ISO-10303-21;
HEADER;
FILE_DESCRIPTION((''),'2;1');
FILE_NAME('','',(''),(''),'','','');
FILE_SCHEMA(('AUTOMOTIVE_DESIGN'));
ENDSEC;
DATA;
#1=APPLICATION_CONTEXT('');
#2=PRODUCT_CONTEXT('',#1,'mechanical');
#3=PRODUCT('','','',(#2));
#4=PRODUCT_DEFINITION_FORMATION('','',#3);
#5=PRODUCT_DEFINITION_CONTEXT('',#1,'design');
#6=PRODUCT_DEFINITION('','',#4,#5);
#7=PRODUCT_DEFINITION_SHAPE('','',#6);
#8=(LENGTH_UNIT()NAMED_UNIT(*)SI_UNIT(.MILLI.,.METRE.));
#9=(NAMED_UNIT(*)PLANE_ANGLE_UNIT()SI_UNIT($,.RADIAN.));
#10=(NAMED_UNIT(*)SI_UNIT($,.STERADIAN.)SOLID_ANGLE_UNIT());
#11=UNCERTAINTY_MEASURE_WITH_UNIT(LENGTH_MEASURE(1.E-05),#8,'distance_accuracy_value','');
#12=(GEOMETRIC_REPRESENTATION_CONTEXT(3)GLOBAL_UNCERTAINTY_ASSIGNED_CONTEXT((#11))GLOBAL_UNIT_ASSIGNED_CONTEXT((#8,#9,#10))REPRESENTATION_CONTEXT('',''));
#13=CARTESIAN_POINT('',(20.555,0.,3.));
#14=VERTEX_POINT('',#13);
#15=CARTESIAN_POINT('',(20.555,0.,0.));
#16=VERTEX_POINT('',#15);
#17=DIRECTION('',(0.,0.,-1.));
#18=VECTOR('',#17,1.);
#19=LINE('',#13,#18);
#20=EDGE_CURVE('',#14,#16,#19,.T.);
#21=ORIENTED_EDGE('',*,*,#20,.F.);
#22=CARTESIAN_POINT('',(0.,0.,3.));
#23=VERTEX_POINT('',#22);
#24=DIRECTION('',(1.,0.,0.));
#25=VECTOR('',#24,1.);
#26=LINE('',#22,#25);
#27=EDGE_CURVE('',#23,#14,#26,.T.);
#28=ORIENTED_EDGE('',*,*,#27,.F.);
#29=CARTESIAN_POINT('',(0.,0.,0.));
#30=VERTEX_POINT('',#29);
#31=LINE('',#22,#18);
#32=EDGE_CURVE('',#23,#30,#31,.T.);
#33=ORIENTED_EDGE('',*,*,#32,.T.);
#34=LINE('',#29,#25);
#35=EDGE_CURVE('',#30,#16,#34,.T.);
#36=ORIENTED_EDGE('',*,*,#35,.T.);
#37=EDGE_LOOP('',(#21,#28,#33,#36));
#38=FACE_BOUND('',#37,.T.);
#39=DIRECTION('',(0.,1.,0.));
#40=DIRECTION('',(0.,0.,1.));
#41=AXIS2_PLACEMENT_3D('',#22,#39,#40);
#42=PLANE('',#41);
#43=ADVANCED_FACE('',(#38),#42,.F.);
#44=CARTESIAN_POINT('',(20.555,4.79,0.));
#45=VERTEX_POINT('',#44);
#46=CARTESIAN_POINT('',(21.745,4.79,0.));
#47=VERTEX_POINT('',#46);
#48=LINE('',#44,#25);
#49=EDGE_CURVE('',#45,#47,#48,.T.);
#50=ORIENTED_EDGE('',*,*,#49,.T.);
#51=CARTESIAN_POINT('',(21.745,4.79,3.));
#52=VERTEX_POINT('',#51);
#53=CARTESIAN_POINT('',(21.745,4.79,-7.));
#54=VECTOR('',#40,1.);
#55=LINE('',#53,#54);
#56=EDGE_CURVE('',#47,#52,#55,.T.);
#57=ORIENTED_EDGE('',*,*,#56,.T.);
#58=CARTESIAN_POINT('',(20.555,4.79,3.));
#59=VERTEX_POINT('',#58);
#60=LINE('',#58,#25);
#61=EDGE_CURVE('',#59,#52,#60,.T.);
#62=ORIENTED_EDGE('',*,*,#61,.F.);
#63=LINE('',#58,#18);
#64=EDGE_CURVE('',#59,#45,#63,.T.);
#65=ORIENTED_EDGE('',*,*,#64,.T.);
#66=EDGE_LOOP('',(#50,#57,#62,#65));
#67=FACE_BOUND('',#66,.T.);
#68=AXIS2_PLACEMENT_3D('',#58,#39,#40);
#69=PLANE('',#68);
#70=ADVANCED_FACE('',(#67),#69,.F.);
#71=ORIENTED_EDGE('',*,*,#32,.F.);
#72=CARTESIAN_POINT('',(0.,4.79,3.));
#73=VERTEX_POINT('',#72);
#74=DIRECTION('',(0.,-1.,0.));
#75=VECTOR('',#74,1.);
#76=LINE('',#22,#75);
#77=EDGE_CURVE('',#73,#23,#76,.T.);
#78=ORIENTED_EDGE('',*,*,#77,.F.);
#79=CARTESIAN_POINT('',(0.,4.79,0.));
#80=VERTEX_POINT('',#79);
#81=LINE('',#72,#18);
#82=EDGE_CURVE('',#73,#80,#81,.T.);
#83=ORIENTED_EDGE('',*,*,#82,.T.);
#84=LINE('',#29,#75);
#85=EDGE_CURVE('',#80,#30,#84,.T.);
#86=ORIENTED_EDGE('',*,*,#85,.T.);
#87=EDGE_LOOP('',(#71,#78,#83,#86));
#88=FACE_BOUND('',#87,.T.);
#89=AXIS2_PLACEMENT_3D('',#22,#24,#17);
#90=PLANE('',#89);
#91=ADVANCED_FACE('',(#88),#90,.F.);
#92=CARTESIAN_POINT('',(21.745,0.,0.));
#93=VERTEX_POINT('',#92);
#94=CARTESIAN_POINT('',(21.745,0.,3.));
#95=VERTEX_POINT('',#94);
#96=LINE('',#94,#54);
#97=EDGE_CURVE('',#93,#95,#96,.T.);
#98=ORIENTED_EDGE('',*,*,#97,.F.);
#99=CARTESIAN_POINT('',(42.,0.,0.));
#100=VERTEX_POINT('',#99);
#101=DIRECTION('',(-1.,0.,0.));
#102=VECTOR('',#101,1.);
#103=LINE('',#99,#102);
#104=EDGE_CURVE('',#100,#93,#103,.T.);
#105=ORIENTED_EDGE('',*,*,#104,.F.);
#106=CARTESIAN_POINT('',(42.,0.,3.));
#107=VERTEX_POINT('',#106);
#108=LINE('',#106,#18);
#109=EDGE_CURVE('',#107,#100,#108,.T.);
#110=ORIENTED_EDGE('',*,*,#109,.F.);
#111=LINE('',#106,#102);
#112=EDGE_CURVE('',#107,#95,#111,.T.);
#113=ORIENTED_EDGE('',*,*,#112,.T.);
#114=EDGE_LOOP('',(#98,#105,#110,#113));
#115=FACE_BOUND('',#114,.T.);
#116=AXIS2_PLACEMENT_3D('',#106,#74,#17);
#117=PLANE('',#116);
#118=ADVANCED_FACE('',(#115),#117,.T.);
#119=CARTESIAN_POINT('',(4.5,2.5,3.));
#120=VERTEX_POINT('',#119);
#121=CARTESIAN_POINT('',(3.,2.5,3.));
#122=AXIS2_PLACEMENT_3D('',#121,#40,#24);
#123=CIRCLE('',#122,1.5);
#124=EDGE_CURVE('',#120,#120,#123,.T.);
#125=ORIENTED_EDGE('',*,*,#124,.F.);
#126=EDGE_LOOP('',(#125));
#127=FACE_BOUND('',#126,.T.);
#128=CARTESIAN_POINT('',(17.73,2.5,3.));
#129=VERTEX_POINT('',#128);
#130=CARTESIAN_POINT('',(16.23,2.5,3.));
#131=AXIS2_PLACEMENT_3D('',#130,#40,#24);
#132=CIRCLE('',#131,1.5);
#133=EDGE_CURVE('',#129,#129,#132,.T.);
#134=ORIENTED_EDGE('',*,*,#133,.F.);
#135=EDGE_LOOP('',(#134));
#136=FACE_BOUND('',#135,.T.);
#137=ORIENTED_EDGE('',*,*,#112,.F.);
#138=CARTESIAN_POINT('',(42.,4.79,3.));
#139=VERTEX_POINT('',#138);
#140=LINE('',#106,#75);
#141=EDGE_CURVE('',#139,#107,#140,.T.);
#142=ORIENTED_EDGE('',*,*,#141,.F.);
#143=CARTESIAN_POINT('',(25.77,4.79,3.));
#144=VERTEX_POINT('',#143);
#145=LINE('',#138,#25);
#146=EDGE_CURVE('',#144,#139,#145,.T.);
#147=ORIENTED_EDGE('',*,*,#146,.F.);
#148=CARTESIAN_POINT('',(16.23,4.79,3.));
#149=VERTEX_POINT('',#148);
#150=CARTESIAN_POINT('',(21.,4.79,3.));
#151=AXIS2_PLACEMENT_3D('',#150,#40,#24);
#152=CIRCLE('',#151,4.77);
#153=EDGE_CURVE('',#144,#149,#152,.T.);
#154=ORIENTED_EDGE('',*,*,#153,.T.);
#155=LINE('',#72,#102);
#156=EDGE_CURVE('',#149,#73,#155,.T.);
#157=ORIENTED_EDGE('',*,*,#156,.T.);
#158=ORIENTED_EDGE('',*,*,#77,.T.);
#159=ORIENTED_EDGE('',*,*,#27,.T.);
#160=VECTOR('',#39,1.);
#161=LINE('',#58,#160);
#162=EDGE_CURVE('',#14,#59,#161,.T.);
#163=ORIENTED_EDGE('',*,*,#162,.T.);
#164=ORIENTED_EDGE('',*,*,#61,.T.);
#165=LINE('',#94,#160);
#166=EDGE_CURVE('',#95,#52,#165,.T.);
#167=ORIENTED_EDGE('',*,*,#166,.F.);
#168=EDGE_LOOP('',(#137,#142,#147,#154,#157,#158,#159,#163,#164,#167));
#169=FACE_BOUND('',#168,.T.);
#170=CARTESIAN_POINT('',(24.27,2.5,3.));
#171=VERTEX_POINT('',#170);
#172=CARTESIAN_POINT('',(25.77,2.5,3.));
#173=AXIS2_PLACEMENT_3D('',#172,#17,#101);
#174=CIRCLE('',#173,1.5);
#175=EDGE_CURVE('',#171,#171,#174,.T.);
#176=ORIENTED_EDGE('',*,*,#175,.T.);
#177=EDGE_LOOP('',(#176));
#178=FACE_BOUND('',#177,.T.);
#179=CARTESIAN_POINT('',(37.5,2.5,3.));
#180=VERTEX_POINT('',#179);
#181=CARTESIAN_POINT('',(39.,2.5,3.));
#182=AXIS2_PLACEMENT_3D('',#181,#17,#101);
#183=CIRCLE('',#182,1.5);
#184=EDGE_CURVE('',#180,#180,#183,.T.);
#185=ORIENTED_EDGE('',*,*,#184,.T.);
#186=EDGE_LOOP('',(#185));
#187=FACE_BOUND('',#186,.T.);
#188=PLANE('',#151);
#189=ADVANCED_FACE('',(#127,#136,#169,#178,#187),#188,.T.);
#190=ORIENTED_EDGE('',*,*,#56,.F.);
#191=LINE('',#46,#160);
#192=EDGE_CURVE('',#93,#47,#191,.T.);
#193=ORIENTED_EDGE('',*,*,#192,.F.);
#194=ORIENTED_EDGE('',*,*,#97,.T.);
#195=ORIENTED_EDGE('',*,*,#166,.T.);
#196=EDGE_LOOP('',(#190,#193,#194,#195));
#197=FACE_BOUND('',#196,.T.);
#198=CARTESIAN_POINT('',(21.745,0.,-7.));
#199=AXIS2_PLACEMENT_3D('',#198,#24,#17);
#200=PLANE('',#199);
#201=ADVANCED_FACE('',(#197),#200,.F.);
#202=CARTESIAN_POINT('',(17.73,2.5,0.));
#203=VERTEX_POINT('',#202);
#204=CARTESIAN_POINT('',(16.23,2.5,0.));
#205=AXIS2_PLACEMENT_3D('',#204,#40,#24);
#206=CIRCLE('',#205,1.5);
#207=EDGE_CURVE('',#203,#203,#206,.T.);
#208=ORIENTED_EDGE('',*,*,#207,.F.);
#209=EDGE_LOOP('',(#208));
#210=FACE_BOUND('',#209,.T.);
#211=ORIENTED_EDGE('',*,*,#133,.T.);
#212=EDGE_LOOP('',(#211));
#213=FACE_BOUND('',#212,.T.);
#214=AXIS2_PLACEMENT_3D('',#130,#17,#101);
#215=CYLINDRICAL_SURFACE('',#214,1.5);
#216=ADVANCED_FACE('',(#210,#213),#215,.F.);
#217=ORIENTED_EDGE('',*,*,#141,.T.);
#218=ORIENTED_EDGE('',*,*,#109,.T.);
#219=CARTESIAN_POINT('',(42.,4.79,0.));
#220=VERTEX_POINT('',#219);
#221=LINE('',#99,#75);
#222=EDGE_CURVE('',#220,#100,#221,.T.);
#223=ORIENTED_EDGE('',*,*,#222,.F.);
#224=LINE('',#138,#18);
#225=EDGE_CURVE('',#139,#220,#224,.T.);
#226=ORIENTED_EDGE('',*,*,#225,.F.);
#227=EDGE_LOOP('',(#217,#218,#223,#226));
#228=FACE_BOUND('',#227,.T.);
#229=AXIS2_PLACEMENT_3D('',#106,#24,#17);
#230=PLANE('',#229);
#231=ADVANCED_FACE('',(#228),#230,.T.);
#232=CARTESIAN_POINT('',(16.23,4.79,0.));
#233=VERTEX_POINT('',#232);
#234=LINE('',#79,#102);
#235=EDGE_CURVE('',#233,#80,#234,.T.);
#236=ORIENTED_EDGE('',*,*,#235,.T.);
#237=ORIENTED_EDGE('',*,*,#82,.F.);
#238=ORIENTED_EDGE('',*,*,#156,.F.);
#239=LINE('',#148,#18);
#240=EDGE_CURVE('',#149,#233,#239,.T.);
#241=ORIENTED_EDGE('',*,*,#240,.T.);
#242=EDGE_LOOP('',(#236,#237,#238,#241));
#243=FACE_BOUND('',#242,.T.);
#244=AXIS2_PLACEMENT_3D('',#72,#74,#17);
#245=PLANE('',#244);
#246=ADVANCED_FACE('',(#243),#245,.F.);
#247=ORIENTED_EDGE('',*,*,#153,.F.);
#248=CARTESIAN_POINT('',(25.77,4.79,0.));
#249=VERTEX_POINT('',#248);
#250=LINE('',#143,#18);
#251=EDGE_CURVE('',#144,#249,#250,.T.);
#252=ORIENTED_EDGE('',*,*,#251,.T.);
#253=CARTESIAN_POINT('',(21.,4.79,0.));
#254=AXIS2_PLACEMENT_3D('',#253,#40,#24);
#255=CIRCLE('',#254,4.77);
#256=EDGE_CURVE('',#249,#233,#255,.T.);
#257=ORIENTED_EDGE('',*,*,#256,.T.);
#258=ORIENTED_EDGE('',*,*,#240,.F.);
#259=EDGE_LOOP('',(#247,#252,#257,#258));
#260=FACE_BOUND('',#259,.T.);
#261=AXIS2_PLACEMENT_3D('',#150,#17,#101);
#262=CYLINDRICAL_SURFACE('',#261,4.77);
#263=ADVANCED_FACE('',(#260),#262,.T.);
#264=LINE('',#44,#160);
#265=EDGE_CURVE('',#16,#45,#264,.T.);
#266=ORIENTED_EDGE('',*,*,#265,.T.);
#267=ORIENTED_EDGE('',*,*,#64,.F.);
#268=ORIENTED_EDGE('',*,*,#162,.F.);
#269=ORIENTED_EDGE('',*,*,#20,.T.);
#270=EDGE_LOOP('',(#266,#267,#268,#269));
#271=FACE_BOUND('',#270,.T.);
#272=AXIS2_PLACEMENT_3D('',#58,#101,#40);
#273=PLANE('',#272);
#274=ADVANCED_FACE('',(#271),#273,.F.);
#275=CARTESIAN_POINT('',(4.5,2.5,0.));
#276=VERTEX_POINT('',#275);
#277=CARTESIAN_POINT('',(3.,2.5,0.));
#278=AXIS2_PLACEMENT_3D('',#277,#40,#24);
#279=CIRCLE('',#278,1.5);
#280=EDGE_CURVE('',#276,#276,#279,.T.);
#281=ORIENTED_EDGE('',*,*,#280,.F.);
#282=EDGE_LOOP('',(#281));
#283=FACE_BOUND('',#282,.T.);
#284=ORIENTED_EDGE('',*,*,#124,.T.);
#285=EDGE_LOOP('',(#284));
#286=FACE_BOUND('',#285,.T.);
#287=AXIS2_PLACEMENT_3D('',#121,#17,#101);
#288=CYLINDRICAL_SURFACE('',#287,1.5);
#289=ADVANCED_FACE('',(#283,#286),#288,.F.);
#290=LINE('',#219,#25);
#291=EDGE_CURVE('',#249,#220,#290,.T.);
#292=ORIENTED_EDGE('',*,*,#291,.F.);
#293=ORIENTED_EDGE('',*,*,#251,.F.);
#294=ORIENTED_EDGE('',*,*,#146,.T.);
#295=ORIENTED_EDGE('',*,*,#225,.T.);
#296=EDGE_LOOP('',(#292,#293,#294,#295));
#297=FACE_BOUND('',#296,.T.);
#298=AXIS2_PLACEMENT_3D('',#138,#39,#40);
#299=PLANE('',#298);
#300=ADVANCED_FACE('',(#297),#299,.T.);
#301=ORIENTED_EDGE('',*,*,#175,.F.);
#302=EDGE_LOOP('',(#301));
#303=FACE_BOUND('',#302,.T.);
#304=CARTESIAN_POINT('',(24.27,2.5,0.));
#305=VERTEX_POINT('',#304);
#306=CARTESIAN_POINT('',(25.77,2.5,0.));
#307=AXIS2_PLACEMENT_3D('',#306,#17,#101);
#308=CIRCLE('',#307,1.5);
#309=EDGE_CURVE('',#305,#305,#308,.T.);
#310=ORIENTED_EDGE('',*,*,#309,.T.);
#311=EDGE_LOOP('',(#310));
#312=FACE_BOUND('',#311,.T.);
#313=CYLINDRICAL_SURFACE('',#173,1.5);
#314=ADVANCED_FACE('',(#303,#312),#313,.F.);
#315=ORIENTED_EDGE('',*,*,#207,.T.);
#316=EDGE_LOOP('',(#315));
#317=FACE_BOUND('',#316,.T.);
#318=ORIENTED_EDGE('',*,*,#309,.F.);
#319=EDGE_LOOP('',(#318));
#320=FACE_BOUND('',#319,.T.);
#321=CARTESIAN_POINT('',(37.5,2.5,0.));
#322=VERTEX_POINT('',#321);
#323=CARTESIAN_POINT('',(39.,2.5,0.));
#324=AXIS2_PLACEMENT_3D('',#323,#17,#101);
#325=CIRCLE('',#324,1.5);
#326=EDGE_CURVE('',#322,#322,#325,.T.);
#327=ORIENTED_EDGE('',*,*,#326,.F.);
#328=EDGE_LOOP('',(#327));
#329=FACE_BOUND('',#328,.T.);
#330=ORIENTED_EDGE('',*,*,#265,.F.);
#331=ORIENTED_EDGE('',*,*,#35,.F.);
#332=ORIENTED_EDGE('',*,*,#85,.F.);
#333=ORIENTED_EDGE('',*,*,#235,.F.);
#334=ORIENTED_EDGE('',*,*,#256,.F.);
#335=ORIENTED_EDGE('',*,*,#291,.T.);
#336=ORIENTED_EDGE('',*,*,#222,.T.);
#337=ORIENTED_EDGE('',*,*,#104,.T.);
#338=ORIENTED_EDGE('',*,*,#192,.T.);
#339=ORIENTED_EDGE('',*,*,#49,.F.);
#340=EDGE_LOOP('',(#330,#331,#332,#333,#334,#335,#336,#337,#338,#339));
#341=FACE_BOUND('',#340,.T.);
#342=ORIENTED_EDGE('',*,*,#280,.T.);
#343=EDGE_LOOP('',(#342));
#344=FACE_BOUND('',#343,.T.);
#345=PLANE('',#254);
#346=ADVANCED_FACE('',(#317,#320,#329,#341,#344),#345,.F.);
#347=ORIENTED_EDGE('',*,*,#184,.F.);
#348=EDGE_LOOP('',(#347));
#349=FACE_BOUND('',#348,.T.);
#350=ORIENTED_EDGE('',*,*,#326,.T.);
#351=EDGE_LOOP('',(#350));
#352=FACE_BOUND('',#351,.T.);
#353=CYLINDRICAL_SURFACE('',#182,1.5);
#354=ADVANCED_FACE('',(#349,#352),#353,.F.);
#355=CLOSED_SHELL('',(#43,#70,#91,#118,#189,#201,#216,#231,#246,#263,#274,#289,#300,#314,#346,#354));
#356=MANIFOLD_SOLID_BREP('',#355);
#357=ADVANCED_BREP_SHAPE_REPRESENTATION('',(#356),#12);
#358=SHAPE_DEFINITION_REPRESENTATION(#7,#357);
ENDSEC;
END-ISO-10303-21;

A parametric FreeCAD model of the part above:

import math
import FreeCAD as App
import Part
import Sketcher

V = App.Vector

doc = App.newDocument("Part")
body = doc.addObject("PartDesign::Body", "Body")

# Sketch on XY plane
sketch1 = doc.addObject("Sketcher::SketchObject", "Sketch")
body.addObject(sketch1)
sketch1.AttachmentSupport = (doc.XY_Plane, [""])
sketch1.MapMode = "FlatFace"
sketch1.addGeometry([
    Part.LineSegment(V(20.55, 0, 0), V(20.55, 4.79, 0)),  # 0
    Part.LineSegment(V(20.55, 4.79, 0), V(21, 4.79, 0)),  # 1
    Part.LineSegment(V(21, 4.79, 0), V(21, 9.56, 0)),  # 2
    Part.ArcOfCircle(Part.Circle(V(21, 4.79, 0), V(0, 0, 1), 4.77), math.radians(90), math.radians(180)),  # 3
    Part.LineSegment(V(16.23, 4.79, 0), V(0, 4.79, 0)),  # 4
    Part.LineSegment(V(0, 4.79, 0), V(0, 0, 0)),  # 5
    Part.LineSegment(V(0, 0, 0), V(20.55, 0, 0)),  # 6
    Part.Circle(V(16.23, 2.5, 0), V(0, 0, 1), 1.5),  # 7
    Part.Circle(V(3, 2.5, 0), V(0, 0, 1), 1.5),  # 8
], False)
sketch1.addConstraint([
    Sketcher.Constraint("Coincident", 0, 2, 1, 1),
    Sketcher.Constraint("Coincident", 1, 2, 2, 1),
    Sketcher.Constraint("Coincident", 2, 2, 3, 1),
    Sketcher.Constraint("Coincident", 3, 2, 4, 1),
    Sketcher.Constraint("Coincident", 4, 2, 5, 1),
    Sketcher.Constraint("Coincident", 5, 2, 6, 1),
    Sketcher.Constraint("Coincident", 6, 2, 0, 1),
    Sketcher.Constraint("Vertical", 0),
    Sketcher.Constraint("Horizontal", 1),
    Sketcher.Constraint("Vertical", 2),
    Sketcher.Constraint("Horizontal", 4),
    Sketcher.Constraint("Vertical", 5),
    Sketcher.Constraint("Horizontal", 6),
    Sketcher.Constraint("Coincident", 5, 2, -1, 1),
    Sketcher.Constraint("Coincident", 1, 2, 3, 3),
    Sketcher.Constraint("Equal", 7, 8),
    Sketcher.Constraint("Horizontal", 7, 3, 8, 3),
    Sketcher.Constraint("Horizontal", 1, 2, 3, 2),
    Sketcher.Constraint("Vertical", 7, 3, 3, 2),
    Sketcher.Constraint("Diameter", 7, 3.0),
    Sketcher.Constraint("Radius", 3, 4.77),
    Sketcher.Constraint("DistanceX", -1, 1, 3, 3, 21.0),
    Sketcher.Constraint("DistanceX", -1, 1, 8, 3, 3.0),
    Sketcher.Constraint("DistanceY", 0, 1, 0, 2, 4.79),
    Sketcher.Constraint("DistanceY", -1, 1, 7, 3, 2.5),
    Sketcher.Constraint("DistanceX", 1, 1, 1, 2, 0.445),
])
pad1 = doc.addObject("PartDesign::Pad", "Pad")
body.addObject(pad1)
pad1.Profile = sketch1
pad1.Length = 3
doc.recompute()

datumplane = doc.addObject("PartDesign::Plane", "DatumPlane")
body.addObject(datumplane)
datumplane.AttachmentSupport = (doc.YZ_Plane, [""])
datumplane.MapMode = "FlatFace"
datumplane.AttachmentOffset = App.Placement(V(0, 0, 21), App.Rotation())
mirrored = doc.addObject("PartDesign::Mirrored", "Mirrored")
body.addObject(mirrored)
mirrored.Originals = [pad1]
mirrored.MirrorPlane = (datumplane, [""])
body.Tip = mirrored

# Sketch on XY plane
sketch2 = doc.addObject("Sketcher::SketchObject", "Sketch001")
body.addObject(sketch2)
sketch2.AttachmentSupport = (doc.XY_Plane, [""])
sketch2.MapMode = "FlatFace"
sketch2.AttachmentOffset = App.Placement(V(0, 0, 3), App.Rotation())
sketch2.addGeometry([
    Part.LineSegment(V(20.6, 4.8, 0), V(20.6, 0, 0)),
    Part.LineSegment(V(20.6, 0, 0), V(21.7, 0, 0)),
    Part.LineSegment(V(21.7, 0, 0), V(21.7, 4.8, 0)),
    Part.LineSegment(V(21.7, 4.8, 0), V(20.6, 4.8, 0)),
], False)
sketch2.addConstraint([
    Sketcher.Constraint("Coincident", 0, 2, 1, 1),
    Sketcher.Constraint("Coincident", 1, 2, 2, 1),
    Sketcher.Constraint("Coincident", 2, 2, 3, 1),
    Sketcher.Constraint("Coincident", 3, 2, 0, 1),
    Sketcher.Constraint("Vertical", 0),
    Sketcher.Constraint("Horizontal", 1),
    Sketcher.Constraint("Vertical", 2),
    Sketcher.Constraint("Horizontal", 3),
    Sketcher.Constraint("PointOnObject", 0, 2, -1),
    Sketcher.Constraint("DistanceX", 1, 1, 1, 2, 1.19),
    Sketcher.Constraint("DistanceY", 0, 2, 0, 1, 4.79),
    Sketcher.Constraint("DistanceX", -1, 1, 0, 2, 20.555),
])
pocket1 = doc.addObject("PartDesign::Pocket", "Pocket")
body.addObject(pocket1)
pocket1.Profile = sketch2
pocket1.Length = 10

doc.recompute()
